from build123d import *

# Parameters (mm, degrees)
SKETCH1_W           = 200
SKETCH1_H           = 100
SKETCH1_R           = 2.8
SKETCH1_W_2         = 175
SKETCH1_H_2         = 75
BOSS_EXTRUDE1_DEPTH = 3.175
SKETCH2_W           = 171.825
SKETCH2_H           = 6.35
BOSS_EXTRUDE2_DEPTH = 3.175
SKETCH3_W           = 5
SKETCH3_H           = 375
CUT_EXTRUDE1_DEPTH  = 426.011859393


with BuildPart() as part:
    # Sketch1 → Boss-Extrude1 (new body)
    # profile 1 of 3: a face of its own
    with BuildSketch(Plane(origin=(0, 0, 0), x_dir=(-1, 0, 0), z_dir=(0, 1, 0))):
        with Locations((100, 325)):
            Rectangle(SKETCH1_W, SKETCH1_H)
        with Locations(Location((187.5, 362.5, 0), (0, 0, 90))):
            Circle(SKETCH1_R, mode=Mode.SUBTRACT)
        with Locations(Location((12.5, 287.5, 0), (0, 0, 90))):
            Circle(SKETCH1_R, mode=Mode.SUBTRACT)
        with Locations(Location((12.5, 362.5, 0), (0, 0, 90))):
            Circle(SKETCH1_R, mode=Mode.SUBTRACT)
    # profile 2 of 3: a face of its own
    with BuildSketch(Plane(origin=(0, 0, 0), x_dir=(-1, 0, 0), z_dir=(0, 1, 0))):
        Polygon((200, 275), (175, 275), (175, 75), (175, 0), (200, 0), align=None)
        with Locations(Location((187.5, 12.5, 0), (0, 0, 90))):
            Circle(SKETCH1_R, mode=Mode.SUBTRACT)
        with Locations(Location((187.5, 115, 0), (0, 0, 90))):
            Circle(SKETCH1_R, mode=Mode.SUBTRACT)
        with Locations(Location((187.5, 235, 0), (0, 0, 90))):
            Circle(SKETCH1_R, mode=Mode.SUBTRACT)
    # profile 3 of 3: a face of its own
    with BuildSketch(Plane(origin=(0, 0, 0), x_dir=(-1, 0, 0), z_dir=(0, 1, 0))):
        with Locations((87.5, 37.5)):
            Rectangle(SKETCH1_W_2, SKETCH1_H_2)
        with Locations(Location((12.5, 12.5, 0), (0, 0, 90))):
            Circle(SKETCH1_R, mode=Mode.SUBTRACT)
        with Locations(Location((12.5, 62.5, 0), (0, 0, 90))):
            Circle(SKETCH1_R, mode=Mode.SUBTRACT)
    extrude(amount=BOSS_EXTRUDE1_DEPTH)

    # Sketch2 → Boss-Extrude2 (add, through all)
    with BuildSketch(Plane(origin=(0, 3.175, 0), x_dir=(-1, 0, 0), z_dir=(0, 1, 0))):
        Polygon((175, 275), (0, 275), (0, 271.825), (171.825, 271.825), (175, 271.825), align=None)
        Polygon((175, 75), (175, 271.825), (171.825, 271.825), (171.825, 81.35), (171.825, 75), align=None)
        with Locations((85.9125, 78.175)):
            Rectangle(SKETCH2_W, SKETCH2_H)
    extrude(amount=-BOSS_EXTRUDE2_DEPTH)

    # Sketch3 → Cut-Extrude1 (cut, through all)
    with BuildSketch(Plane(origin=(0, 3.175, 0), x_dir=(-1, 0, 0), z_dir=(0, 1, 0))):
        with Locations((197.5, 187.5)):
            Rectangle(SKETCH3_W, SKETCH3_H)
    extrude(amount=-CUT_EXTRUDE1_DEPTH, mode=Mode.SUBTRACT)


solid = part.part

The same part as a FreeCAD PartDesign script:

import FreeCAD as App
import Part
import Sketcher
from FreeCAD import Vector
Q = App.Units.Quantity


def add_polygon(sketch, points):
    """Adds a closed chain of lines whose ends are joined by coincident constraints."""
    first, n = sketch.GeometryCount, len(points)
    for a, b in zip(points, points[1:] + points[:1]):
        sketch.addGeometry(Part.LineSegment(App.Vector(*a, 0), App.Vector(*b, 0)), False)
    for i in range(n):
        sketch.addConstraint(Sketcher.Constraint("Coincident", first + i, 2, first + (i + 1) % n, 1))

doc = App.newDocument("Part")
body = doc.addObject("PartDesign::Body", "Body")

# Sketch on XZ plane
sketch1 = doc.addObject("Sketcher::SketchObject", "Sketch")
body.addObject(sketch1)
sketch1.AttachmentSupport = (doc.XZ_Plane, [""])
sketch1.MapMode = "FlatFace"
add_polygon(sketch1, [(0, 375), (0, 275), (-175, 275), (-175, 75), (0, 75), (0, 0), (-200, 0), (-200, 375)])  # lines 0-7
sketch1.addGeometry(Part.Circle(Vector(-12.5, 287.5, 0), Vector(0, 0, 1), 2.8), False)  # 8
sketch1.addGeometry(Part.Circle(Vector(-12.5, 362.5, 0), Vector(0, 0, 1), 2.8), False)  # 9
sketch1.addGeometry(Part.Circle(Vector(-187.5, 362.5, 0), Vector(0, 0, 1), 2.8), False)  # 10
sketch1.addGeometry(Part.Circle(Vector(-187.5, 235, 0), Vector(0, 0, 1), 2.8), False)  # 11
sketch1.addGeometry(Part.Circle(Vector(-187.5, 12.5, 0), Vector(0, 0, 1), 2.8), False)  # 12
sketch1.addGeometry(Part.Circle(Vector(-187.5, 115, 0), Vector(0, 0, 1), 2.8), False)  # 13
sketch1.addGeometry(Part.Circle(Vector(-12.5, 62.5, 0), Vector(0, 0, 1), 2.8), False)  # 14
sketch1.addGeometry(Part.Circle(Vector(-12.5, 12.5, 0), Vector(0, 0, 1), 2.8), False)  # 15
sketch1.addConstraint(Sketcher.Constraint("Vertical", 0))
sketch1.addConstraint(Sketcher.Constraint("Horizontal", 1))
sketch1.addConstraint(Sketcher.Constraint("Vertical", 2))
sketch1.addConstraint(Sketcher.Constraint("Horizontal", 3))
sketch1.addConstraint(Sketcher.Constraint("Vertical", 4))
sketch1.addConstraint(Sketcher.Constraint("Horizontal", 5))
sketch1.addConstraint(Sketcher.Constraint("Vertical", 6))
sketch1.addConstraint(Sketcher.Constraint("Horizontal", 7))
sketch1.addConstraint(Sketcher.Constraint("Coincident", 4, 2, -1, 1))
sketch1.addConstraint(Sketcher.Constraint("Equal", 8, 9))
sketch1.addConstraint(Sketcher.Constraint("Equal", 9, 10))
sketch1.addConstraint(Sketcher.Constraint("Equal", 10, 11))
sketch1.addConstraint(Sketcher.Constraint("Equal", 11, 12))
sketch1.addConstraint(Sketcher.Constraint("Equal", 12, 13))
sketch1.addConstraint(Sketcher.Constraint("Equal", 13, 14))
sketch1.addConstraint(Sketcher.Constraint("Equal", 14, 15))
sketch1.addConstraint(Sketcher.Constraint("PointOnObject", 0, 2, -2))
sketch1.addConstraint(Sketcher.Constraint("Horizontal", 9, 3, 10, 3))
sketch1.addConstraint(Sketcher.Constraint("Horizontal", 12, 3, 15, 3))
sketch1.addConstraint(Sketcher.Constraint("Vertical", 8, 3, 9, 3))
sketch1.addConstraint(Sketcher.Constraint("Vertical", 10, 3, 11, 3))
sketch1.addConstraint(Sketcher.Constraint("Vertical", 11, 3, 12, 3))
sketch1.addConstraint(Sketcher.Constraint("Vertical", 12, 3, 13, 3))
sketch1.addConstraint(Sketcher.Constraint("Vertical", 9, 3, 14, 3))
sketch1.addConstraint(Sketcher.Constraint("Vertical", 14, 3, 15, 3))
sketch1.addConstraint(Sketcher.Constraint("Equal", 7, 2))
sketch1.addConstraint(Sketcher.Constraint("Diameter", 8, Q("5.6 mm")))
sketch1.addConstraint(Sketcher.Constraint("DistanceX", 1, 2, 1, 1, Q("175 mm")))
sketch1.addConstraint(Sketcher.Constraint("DistanceX", 5, 2, 5, 1, Q("200 mm")))
sketch1.addConstraint(Sketcher.Constraint("DistanceY", 0, 2, 0, 1, Q("100 mm")))
sketch1.addConstraint(Sketcher.Constraint("DistanceY", 4, 2, 4, 1, Q("75 mm")))
sketch1.addConstraint(Sketcher.Constraint("DistanceY", -1, 1, 11, 3, Q("235 mm")))
sketch1.addConstraint(Sketcher.Constraint("DistanceY", -1, 1, 13, 3, Q("115 mm")))
sketch1.addConstraint(Sketcher.Constraint("DistanceY", 8, 3, 9, 3, Q("75 mm")))
sketch1.addConstraint(Sketcher.Constraint("DistanceX", 10, 3, 9, 3, Q("175 mm")))
sketch1.addConstraint(Sketcher.Constraint("DistanceY", 12, 3, 8, 3, Q("275 mm")))
sketch1.addConstraint(Sketcher.Constraint("DistanceY", 12, 3, 14, 3, Q("50 mm")))
sketch1.addConstraint(Sketcher.Constraint("DistanceX", 8, 3, -1, 1, Q("12.5 mm")))
sketch1.addConstraint(Sketcher.Constraint("DistanceY", -1, 1, 8, 3, Q("287.5 mm")))
pad1 = doc.addObject("PartDesign::Pad", "Pad")
body.addObject(pad1)
pad1.Profile = sketch1
pad1.Length = 3.175
pad1.Reversed = True

# Sketch on XZ plane
sketch2 = doc.addObject("Sketcher::SketchObject", "Sketch001")
body.addObject(sketch2)
sketch2.AttachmentSupport = (doc.XZ_Plane, [""])
sketch2.MapMode = "FlatFace"
sketch2.AttachmentOffset = App.Placement(Vector(0, 0, -3.175), App.Rotation())
add_polygon(sketch2, [(-175, 275), (0, 275), (0, 271.8), (-171.8, 271.8), (-171.8, 81.3), (0, 81.3), (0, 75), (-175, 75)])  # lines 0-7
sketch2.addConstraint(Sketcher.Constraint("Horizontal", 0))
sketch2.addConstraint(Sketcher.Constraint("Vertical", 1))
sketch2.addConstraint(Sketcher.Constraint("Horizontal", 2))
sketch2.addConstraint(Sketcher.Constraint("Vertical", 3))
sketch2.addConstraint(Sketcher.Constraint("Horizontal", 4))
sketch2.addConstraint(Sketcher.Constraint("Vertical", 5))
sketch2.addConstraint(Sketcher.Constraint("Horizontal", 6))
sketch2.addConstraint(Sketcher.Constraint("Vertical", 7))
sketch2.addConstraint(Sketcher.Constraint("PointOnObject", 0, 2, -2))
sketch2.addConstraint(Sketcher.Constraint("PointOnObject", 4, 2, -2))
sketch2.addConstraint(Sketcher.Constraint("DistanceX", 0, 1, 0, 2, Q("175 mm")))
sketch2.addConstraint(Sketcher.Constraint("DistanceY", 7, 1, 7, 2, Q("200 mm")))
sketch2.addConstraint(Sketcher.Constraint("DistanceY", -1, 1, 0, 2, Q("275 mm")))
sketch2.addConstraint(Sketcher.Constraint("DistanceY", 5, 2, 5, 1, Q("6.35 mm")))
sketch2.addConstraint(Sketcher.Constraint("DistanceX", 2, 2, 2, 1, Q("171.825 mm")))
sketch2.addConstraint(Sketcher.Constraint("DistanceY", 1, 2, 1, 1, Q("3.175 mm")))
pad2 = doc.addObject("PartDesign::Pad", "Pad001")
body.addObject(pad2)
pad2.Profile = sketch2
pad2.Length = 3.175

# Sketch on XZ plane
sketch3 = doc.addObject("Sketcher::SketchObject", "Sketch002")
body.addObject(sketch3)
sketch3.AttachmentSupport = (doc.XZ_Plane, [""])
sketch3.MapMode = "FlatFace"
sketch3.AttachmentOffset = App.Placement(Vector(0, 0, -3.175), App.Rotation())
add_polygon(sketch3, [(-195, 375), (-195, 0), (-200, 0), (-200, 375)])  # lines 0-3
sketch3.addConstraint(Sketcher.Constraint("Vertical", 0))
sketch3.addConstraint(Sketcher.Constraint("Horizontal", 1))
sketch3.addConstraint(Sketcher.Constraint("Vertical", 2))
sketch3.addConstraint(Sketcher.Constraint("Horizontal", 3))
sketch3.addConstraint(Sketcher.Constraint("PointOnObject", 0, 2, -1))
sketch3.addConstraint(Sketcher.Constraint("DistanceX", 1, 2, 1, 1, Q("5 mm")))
sketch3.addConstraint(Sketcher.Constraint("DistanceY", 0, 2, 0, 1, Q("375 mm")))
sketch3.addConstraint(Sketcher.Constraint("DistanceX", 0, 2, -1, 1, Q("195 mm")))
pocket1 = doc.addObject("PartDesign::Pocket", "Pocket")
body.addObject(pocket1)
pocket1.Profile = sketch3
pocket1.Type = "ThroughAll"
pocket1.Reversed = True

doc.recompute()
